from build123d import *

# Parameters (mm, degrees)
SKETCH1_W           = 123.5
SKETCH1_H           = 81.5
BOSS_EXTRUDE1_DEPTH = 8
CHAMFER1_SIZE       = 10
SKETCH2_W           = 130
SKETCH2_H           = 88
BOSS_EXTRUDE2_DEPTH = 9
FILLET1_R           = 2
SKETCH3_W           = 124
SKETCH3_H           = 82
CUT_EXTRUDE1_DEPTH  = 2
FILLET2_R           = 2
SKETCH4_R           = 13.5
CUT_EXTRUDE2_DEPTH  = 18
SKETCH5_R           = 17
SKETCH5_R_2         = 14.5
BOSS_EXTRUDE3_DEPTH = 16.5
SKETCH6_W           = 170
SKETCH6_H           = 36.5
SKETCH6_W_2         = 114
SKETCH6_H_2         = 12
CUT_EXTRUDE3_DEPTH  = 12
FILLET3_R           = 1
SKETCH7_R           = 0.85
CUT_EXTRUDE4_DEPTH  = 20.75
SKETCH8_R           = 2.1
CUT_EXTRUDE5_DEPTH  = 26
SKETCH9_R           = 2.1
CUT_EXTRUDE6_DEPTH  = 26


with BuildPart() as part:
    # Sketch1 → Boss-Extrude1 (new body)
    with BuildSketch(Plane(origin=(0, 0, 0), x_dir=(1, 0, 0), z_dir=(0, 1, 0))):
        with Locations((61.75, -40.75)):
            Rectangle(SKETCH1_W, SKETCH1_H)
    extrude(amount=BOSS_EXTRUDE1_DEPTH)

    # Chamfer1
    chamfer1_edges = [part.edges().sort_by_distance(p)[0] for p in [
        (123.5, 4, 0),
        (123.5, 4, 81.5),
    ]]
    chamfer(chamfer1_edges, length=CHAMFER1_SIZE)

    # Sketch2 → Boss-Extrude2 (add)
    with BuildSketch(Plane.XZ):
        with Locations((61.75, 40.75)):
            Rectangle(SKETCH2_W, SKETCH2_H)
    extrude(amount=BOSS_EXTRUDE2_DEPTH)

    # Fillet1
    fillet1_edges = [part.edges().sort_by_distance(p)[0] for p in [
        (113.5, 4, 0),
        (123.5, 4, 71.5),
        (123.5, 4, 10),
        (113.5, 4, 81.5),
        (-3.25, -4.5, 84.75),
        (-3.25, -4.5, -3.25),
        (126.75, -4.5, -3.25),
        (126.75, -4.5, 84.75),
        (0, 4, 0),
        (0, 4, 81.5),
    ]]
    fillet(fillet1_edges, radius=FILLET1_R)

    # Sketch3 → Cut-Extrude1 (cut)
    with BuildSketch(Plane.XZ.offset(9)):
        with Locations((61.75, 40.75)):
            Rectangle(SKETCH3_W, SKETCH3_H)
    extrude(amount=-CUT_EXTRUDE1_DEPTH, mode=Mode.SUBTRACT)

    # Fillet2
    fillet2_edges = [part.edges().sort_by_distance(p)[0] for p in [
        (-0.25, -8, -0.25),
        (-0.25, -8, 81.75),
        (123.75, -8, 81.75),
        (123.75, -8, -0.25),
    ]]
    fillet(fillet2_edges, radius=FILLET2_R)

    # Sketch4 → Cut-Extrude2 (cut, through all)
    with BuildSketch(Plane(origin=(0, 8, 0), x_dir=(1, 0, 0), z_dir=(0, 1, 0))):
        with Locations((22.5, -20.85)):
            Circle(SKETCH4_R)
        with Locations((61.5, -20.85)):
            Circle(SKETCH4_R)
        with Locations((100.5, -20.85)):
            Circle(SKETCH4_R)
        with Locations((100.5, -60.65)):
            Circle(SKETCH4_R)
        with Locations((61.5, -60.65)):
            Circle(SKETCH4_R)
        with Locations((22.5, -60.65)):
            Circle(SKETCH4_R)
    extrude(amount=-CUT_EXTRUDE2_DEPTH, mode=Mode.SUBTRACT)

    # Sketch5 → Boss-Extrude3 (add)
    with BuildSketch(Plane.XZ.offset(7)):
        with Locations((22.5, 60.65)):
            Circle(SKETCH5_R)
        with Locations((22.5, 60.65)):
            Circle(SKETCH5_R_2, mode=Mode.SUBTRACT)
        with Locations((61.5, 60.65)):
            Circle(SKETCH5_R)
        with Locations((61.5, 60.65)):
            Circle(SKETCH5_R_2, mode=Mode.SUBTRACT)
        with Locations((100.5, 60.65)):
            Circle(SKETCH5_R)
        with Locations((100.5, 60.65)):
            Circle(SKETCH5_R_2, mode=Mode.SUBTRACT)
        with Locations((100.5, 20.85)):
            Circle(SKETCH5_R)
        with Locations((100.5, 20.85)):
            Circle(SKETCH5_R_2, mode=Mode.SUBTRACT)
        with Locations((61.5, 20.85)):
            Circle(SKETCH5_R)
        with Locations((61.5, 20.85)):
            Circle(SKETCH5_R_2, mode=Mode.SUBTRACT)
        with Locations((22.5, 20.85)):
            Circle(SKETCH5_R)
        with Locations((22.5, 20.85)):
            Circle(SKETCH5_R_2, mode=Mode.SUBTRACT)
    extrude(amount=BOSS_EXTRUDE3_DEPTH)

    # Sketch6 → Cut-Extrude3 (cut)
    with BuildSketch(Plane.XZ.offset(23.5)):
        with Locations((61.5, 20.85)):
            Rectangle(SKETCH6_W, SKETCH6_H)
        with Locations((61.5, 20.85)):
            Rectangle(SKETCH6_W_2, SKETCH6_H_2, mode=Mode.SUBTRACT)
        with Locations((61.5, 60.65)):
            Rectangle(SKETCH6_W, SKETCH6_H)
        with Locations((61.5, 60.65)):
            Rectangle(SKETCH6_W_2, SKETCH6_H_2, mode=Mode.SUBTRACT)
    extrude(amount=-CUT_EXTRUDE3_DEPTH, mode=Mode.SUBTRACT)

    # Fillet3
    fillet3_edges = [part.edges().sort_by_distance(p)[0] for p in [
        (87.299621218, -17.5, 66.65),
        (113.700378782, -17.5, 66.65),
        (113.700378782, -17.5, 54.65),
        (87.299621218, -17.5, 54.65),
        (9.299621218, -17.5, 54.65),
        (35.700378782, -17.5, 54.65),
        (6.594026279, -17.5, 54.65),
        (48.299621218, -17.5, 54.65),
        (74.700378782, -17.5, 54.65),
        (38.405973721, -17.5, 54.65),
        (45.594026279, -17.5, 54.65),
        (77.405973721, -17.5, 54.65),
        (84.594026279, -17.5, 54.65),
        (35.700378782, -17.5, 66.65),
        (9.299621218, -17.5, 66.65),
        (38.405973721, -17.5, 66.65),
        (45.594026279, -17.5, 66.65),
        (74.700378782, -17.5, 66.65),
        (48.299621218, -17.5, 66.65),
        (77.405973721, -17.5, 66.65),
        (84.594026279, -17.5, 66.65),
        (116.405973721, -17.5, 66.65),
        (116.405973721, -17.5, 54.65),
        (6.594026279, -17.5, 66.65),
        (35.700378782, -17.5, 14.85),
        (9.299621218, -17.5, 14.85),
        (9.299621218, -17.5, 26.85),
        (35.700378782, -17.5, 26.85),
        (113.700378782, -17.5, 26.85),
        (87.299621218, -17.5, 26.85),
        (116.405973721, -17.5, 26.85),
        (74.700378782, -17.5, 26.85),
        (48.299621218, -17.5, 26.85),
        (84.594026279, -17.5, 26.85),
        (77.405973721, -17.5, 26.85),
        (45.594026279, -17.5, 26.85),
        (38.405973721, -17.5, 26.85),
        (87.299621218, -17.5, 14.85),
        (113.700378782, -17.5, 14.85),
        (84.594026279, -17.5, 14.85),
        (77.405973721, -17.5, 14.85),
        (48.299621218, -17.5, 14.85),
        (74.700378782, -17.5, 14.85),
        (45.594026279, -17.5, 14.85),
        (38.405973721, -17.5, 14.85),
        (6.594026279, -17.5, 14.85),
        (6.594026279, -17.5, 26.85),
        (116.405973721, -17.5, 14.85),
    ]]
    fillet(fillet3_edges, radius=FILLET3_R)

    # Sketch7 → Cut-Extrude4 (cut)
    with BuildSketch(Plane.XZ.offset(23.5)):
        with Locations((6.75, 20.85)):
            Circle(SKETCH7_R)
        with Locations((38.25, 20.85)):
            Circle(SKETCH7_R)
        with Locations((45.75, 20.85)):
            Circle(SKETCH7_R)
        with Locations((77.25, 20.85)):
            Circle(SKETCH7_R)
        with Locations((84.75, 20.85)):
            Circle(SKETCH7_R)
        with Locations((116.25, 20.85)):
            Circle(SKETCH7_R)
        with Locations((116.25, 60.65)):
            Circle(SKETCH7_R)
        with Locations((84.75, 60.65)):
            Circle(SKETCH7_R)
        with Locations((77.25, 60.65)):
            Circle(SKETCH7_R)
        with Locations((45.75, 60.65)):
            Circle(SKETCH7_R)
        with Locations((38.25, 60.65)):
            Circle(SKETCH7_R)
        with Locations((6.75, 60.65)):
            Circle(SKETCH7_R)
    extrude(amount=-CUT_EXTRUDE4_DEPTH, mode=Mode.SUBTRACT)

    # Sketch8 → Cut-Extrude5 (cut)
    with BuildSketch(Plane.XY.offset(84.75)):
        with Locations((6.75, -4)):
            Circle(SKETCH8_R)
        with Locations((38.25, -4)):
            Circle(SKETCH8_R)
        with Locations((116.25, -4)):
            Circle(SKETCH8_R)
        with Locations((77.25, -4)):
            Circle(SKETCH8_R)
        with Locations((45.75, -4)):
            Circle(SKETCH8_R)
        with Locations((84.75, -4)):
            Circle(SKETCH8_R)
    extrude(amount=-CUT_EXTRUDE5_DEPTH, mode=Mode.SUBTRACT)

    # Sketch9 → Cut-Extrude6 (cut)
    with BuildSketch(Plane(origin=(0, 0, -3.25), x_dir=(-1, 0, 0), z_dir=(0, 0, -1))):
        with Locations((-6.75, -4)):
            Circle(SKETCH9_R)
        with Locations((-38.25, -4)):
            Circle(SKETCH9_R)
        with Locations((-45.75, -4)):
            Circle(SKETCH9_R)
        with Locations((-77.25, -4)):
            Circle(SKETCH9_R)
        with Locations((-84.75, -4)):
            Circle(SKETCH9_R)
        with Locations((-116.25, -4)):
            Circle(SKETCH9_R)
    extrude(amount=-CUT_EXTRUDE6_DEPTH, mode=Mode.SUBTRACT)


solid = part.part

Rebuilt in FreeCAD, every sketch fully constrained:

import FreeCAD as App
import Part
import Sketcher


def edges_at(feature, points):
    """Names of the edges that pass closest to the given points."""
    edges = feature.Shape.Edges
    near = lambda p: min(range(len(edges)), key=lambda i: edges[i].distToShape(Part.Vertex(*p))[0])
    return sorted({f"Edge{near(p) + 1}" for p in points})

doc = App.newDocument("Part")
params = doc.addObject("Spreadsheet::Sheet", "Params")
for row, (alias, value) in enumerate([
    ("sketch1_width", "123.5 mm"),
    ("sketch1_height", "81.5 mm"),
    ("pad1_length", "8 mm"),
    ("chamfer_size", "10 mm"),
    ("sketch2_width", "130 mm"),
    ("sketch2_height", "88 mm"),
    ("pad2_length", "9 mm"),
    ("fillet_radius", "2 mm"),
    ("sketch3_width", "124 mm"),
    ("sketch3_height", "82 mm"),
    ("pocket1_length", "2 mm"),
    ("fillet2_radius", "2 mm"),
    ("sketch4_diameter", "27 mm"),
    ("sketch5_diameter", "34 mm"),
    ("sketch5_diameter2", "29 mm"),
    ("pad3_length", "16.5 mm"),
    ("sketch6_width", "170 mm"),
    ("sketch6_width2", "114 mm"),
    ("sketch6_height", "12 mm"),
    ("sketch6_height2", "36.5 mm"),
    ("pocket3_length", "12 mm"),
    ("fillet3_radius", "1 mm"),
    ("sketch7_diameter", "1.7 mm"),
    ("pocket4_length", "20.75 mm"),
    ("sketch8_diameter", "4.2 mm"),
    ("pocket5_length", "26 mm"),
    ("sketch9_diameter", "4.2 mm"),
    ("pocket6_length", "26 mm"),
], start=1):
    params.set(f"A{row}", alias)
    params.set(f"B{row}", "=" + value)
    params.setAlias(f"B{row}", alias)

body = doc.addObject("PartDesign::Body", "Body")

# Sketch on XZ plane
sketch1 = body.newObject("Sketcher::SketchObject", "Sketch")
sketch1.AttachmentSupport = (doc.getObject("XZ_Plane"), [""])
sketch1.MapMode = "FlatFace"
sketch1.addGeometry(Part.LineSegment(App.Vector(0, 0, 0), App.Vector(0, 81.5, 0)), False)
sketch1.addGeometry(Part.LineSegment(App.Vector(0, 81.5, 0), App.Vector(123.5, 81.5, 0)), False)
sketch1.addGeometry(Part.LineSegment(App.Vector(123.5, 81.5, 0), App.Vector(123.5, 0, 0)), False)
sketch1.addGeometry(Part.LineSegment(App.Vector(123.5, 0, 0), App.Vector(0, 0, 0)), False)
sketch1.addConstraint(Sketcher.Constraint("Coincident", 0, 2, 1, 1))
sketch1.addConstraint(Sketcher.Constraint("Coincident", 1, 2, 2, 1))
sketch1.addConstraint(Sketcher.Constraint("Coincident", 2, 2, 3, 1))
sketch1.addConstraint(Sketcher.Constraint("Coincident", 3, 2, 0, 1))
sketch1.addConstraint(Sketcher.Constraint("Vertical", 0))
sketch1.addConstraint(Sketcher.Constraint("Horizontal", 1))
sketch1.addConstraint(Sketcher.Constraint("Vertical", 2))
sketch1.addConstraint(Sketcher.Constraint("Horizontal", 3))
sketch1.addConstraint(Sketcher.Constraint("Coincident", 3, 2, -1, 1))
sketch1.addConstraint(Sketcher.Constraint("DistanceX", 1, 1, 1, 2, 123.5))
sketch1.addConstraint(Sketcher.Constraint("DistanceY", 0, 1, 0, 2, 81.5))
sketch1.setExpression("Constraints[9]", "Params.sketch1_width")
sketch1.setExpression("Constraints[10]", "Params.sketch1_height")
pad1 = body.newObject("PartDesign::Pad", "Pad")
pad1.Profile = sketch1
pad1.setExpression("Length", "Params.pad1_length")
pad1.Reversed = True
doc.recompute()

chamfer = body.newObject("PartDesign::Chamfer", "Chamfer")
chamfer.Base = (pad1, edges_at(pad1, [(123.5, 4, 0), (123.5, 4, 81.5)]))
chamfer.setExpression("Size", "Params.chamfer_size")

# Sketch on XZ plane
sketch2 = body.newObject("Sketcher::SketchObject", "Sketch001")
sketch2.AttachmentSupport = (doc.getObject("XZ_Plane"), [""])
sketch2.MapMode = "FlatFace"
sketch2.addGeometry(Part.LineSegment(App.Vector(-3.25, 84.75, 0), App.Vector(-3.25, -3.25, 0)), False)
sketch2.addGeometry(Part.LineSegment(App.Vector(-3.25, -3.25, 0), App.Vector(126.75, -3.25, 0)), False)
sketch2.addGeometry(Part.LineSegment(App.Vector(126.75, -3.25, 0), App.Vector(126.75, 84.75, 0)), False)
sketch2.addGeometry(Part.LineSegment(App.Vector(126.75, 84.75, 0), App.Vector(-3.25, 84.75, 0)), False)
sketch2.addConstraint(Sketcher.Constraint("Coincident", 0, 2, 1, 1))
sketch2.addConstraint(Sketcher.Constraint("Coincident", 1, 2, 2, 1))
sketch2.addConstraint(Sketcher.Constraint("Coincident", 2, 2, 3, 1))
sketch2.addConstraint(Sketcher.Constraint("Coincident", 3, 2, 0, 1))
sketch2.addConstraint(Sketcher.Constraint("Vertical", 0))
sketch2.addConstraint(Sketcher.Constraint("Horizontal", 1))
sketch2.addConstraint(Sketcher.Constraint("Vertical", 2))
sketch2.addConstraint(Sketcher.Constraint("Horizontal", 3))
sketch2.addConstraint(Sketcher.Constraint("DistanceX", 1, 1, 1, 2, 130.0))
sketch2.addConstraint(Sketcher.Constraint("DistanceY", 0, 2, 0, 1, 88.0))
sketch2.addConstraint(Sketcher.Constraint("DistanceX", 0, 2, -1, 1, 3.25))
sketch2.addConstraint(Sketcher.Constraint("DistanceY", 0, 2, -1, 1, 3.25))
sketch2.setExpression("Constraints[8]", "Params.sketch2_width")
sketch2.setExpression("Constraints[9]", "Params.sketch2_height")
pad2 = body.newObject("PartDesign::Pad", "Pad001")
pad2.Profile = sketch2
pad2.setExpression("Length", "Params.pad2_length")
doc.recompute()

fillet = body.newObject("PartDesign::Fillet", "Fillet")
fillet.Base = (pad2, edges_at(pad2, [
    (113.5, 4, 0),
    (123.5, 4, 71.5),
    (123.5, 4, 10),
    (113.5, 4, 81.5),
    (-3.25, -4.5, 84.75),
    (-3.25, -4.5, -3.25),
    (126.75, -4.5, -3.25),
    (126.75, -4.5, 84.75),
    (0, 4, 0),
    (0, 4, 81.5),
]))
fillet.setExpression("Radius", "Params.fillet_radius")

# Sketch on XZ plane
sketch3 = body.newObject("Sketcher::SketchObject", "Sketch002")
sketch3.AttachmentSupport = (doc.getObject("XZ_Plane"), [""])
sketch3.MapMode = "FlatFace"
sketch3.AttachmentOffset = App.Placement(App.Vector(0, 0, 9), App.Rotation())
sketch3.addGeometry(Part.LineSegment(App.Vector(-0.25, 81.75, 0), App.Vector(-0.25, -0.25, 0)), False)
sketch3.addGeometry(Part.LineSegment(App.Vector(-0.25, -0.25, 0), App.Vector(123.75, -0.25, 0)), False)
sketch3.addGeometry(Part.LineSegment(App.Vector(123.75, -0.25, 0), App.Vector(123.75, 81.75, 0)), False)
sketch3.addGeometry(Part.LineSegment(App.Vector(123.75, 81.75, 0), App.Vector(-0.25, 81.75, 0)), False)
sketch3.addConstraint(Sketcher.Constraint("Coincident", 0, 2, 1, 1))
sketch3.addConstraint(Sketcher.Constraint("Coincident", 1, 2, 2, 1))
sketch3.addConstraint(Sketcher.Constraint("Coincident", 2, 2, 3, 1))
sketch3.addConstraint(Sketcher.Constraint("Coincident", 3, 2, 0, 1))
sketch3.addConstraint(Sketcher.Constraint("Vertical", 0))
sketch3.addConstraint(Sketcher.Constraint("Horizontal", 1))
sketch3.addConstraint(Sketcher.Constraint("Vertical", 2))
sketch3.addConstraint(Sketcher.Constraint("Horizontal", 3))
sketch3.addConstraint(Sketcher.Constraint("DistanceX", 1, 1, 1, 2, 124.0))
sketch3.addConstraint(Sketcher.Constraint("DistanceY", 0, 2, 0, 1, 82.0))
sketch3.addConstraint(Sketcher.Constraint("DistanceX", 0, 2, -1, 1, 0.25))
sketch3.addConstraint(Sketcher.Constraint("DistanceY", 0, 2, -1, 1, 0.25))
sketch3.setExpression("Constraints[8]", "Params.sketch3_width")
sketch3.setExpression("Constraints[9]", "Params.sketch3_height")
pocket1 = body.newObject("PartDesign::Pocket", "Pocket")
pocket1.Profile = sketch3
pocket1.setExpression("Length", "Params.pocket1_length")
doc.recompute()

fillet2 = body.newObject("PartDesign::Fillet", "Fillet001")
fillet2.Base = (pocket1, edges_at(pocket1, [
    (-0.25, -8, -0.25),
    (-0.25, -8, 81.75),
    (123.75, -8, 81.75),
    (123.75, -8, -0.25),
]))
fillet2.setExpression("Radius", "Params.fillet2_radius")

# Sketch on XZ plane
sketch4 = body.newObject("Sketcher::SketchObject", "Sketch003")
sketch4.AttachmentSupport = (doc.getObject("XZ_Plane"), [""])
sketch4.MapMode = "FlatFace"
sketch4.AttachmentOffset = App.Placement(App.Vector(0, 0, -8), App.Rotation())
sketch4.addGeometry(Part.Circle(App.Vector(22.5, 20.85, 0), App.Vector(0, 0, 1), 13.5), False)
sketch4.addGeometry(Part.Circle(App.Vector(61.5, 20.85, 0), App.Vector(0, 0, 1), 13.5), False)
sketch4.addGeometry(Part.Circle(App.Vector(100.5, 20.85, 0), App.Vector(0, 0, 1), 13.5), False)
sketch4.addGeometry(Part.Circle(App.Vector(100.5, 60.65, 0), App.Vector(0, 0, 1), 13.5), False)
sketch4.addGeometry(Part.Circle(App.Vector(61.5, 60.65, 0), App.Vector(0, 0, 1), 13.5), False)
sketch4.addGeometry(Part.Circle(App.Vector(22.5, 60.65, 0), App.Vector(0, 0, 1), 13.5), False)
sketch4.addConstraint(Sketcher.Constraint("Equal", 0, 1))
sketch4.addConstraint(Sketcher.Constraint("Equal", 1, 2))
sketch4.addConstraint(Sketcher.Constraint("Equal", 2, 3))
sketch4.addConstraint(Sketcher.Constraint("Equal", 3, 4))
sketch4.addConstraint(Sketcher.Constraint("Equal", 4, 5))
sketch4.addConstraint(Sketcher.Constraint("Horizontal", 0, 3, 1, 3))
sketch4.addConstraint(Sketcher.Constraint("Horizontal", 1, 3, 2, 3))
sketch4.addConstraint(Sketcher.Constraint("Horizontal", 3, 3, 4, 3))
sketch4.addConstraint(Sketcher.Constraint("Horizontal", 4, 3, 5, 3))
sketch4.addConstraint(Sketcher.Constraint("Vertical", 2, 3, 3, 3))
sketch4.addConstraint(Sketcher.Constraint("Vertical", 1, 3, 4, 3))
sketch4.addConstraint(Sketcher.Constraint("Vertical", 0, 3, 5, 3))
sketch4.addConstraint(Sketcher.Constraint("Diameter", 0, 27.0))
sketch4.addConstraint(Sketcher.Constraint("DistanceX", 0, 3, 1, 3, 39.0))
sketch4.addConstraint(Sketcher.Constraint("DistanceX", 1, 3, 2, 3, 39.0))
sketch4.addConstraint(Sketcher.Constraint("DistanceX", -1, 1, 0, 3, 22.5))
sketch4.addConstraint(Sketcher.Constraint("DistanceY", 2, 3, 3, 3, 39.8))
sketch4.addConstraint(Sketcher.Constraint("DistanceY", -1, 1, 0, 3, 20.85))
sketch4.setExpression("Constraints[12]", "Params.sketch4_diameter")
pocket2 = body.newObject("PartDesign::Pocket", "Pocket001")
pocket2.Profile = sketch4
pocket2.Type = "ThroughAll"
pocket2.Reversed = True

# Sketch on XZ plane
sketch5 = body.newObject("Sketcher::SketchObject", "Sketch004")
sketch5.AttachmentSupport = (doc.getObject("XZ_Plane"), [""])
sketch5.MapMode = "FlatFace"
sketch5.AttachmentOffset = App.Placement(App.Vector(0, 0, 7), App.Rotation())
sketch5.addGeometry(Part.Circle(App.Vector(22.5, 60.65, 0), App.Vector(0, 0, 1), 17), False)
sketch5.addGeometry(Part.Circle(App.Vector(22.5, 60.65, 0), App.Vector(0, 0, 1), 14.5), False)
sketch5.addGeometry(Part.Circle(App.Vector(61.5, 60.65, 0), App.Vector(0, 0, 1), 17), False)
sketch5.addGeometry(Part.Circle(App.Vector(61.5, 60.65, 0), App.Vector(0, 0, 1), 14.5), False)
sketch5.addGeometry(Part.Circle(App.Vector(100.5, 60.65, 0), App.Vector(0, 0, 1), 17), False)
sketch5.addGeometry(Part.Circle(App.Vector(100.5, 60.65, 0), App.Vector(0, 0, 1), 14.5), False)
sketch5.addGeometry(Part.Circle(App.Vector(100.5, 20.85, 0), App.Vector(0, 0, 1), 17), False)
sketch5.addGeometry(Part.Circle(App.Vector(100.5, 20.85, 0), App.Vector(0, 0, 1), 14.5), False)
sketch5.addGeometry(Part.Circle(App.Vector(61.5, 20.85, 0), App.Vector(0, 0, 1), 17), False)
sketch5.addGeometry(Part.Circle(App.Vector(61.5, 20.85, 0), App.Vector(0, 0, 1), 14.5), False)
sketch5.addGeometry(Part.Circle(App.Vector(22.5, 20.85, 0), App.Vector(0, 0, 1), 17), False)
sketch5.addGeometry(Part.Circle(App.Vector(22.5, 20.85, 0), App.Vector(0, 0, 1), 14.5), False)
sketch5.addConstraint(Sketcher.Constraint("Coincident", 1, 3, 0, 3))
sketch5.addConstraint(Sketcher.Constraint("Coincident", 3, 3, 2, 3))
sketch5.addConstraint(Sketcher.Constraint("Coincident", 5, 3, 4, 3))
sketch5.addConstraint(Sketcher.Constraint("Coincident", 7, 3, 6, 3))
sketch5.addConstraint(Sketcher.Constraint("Coincident", 9, 3, 8, 3))
sketch5.addConstraint(Sketcher.Constraint("Coincident", 11, 3, 10, 3))
sketch5.addConstraint(Sketcher.Constraint("Equal", 0, 2))
sketch5.addConstraint(Sketcher.Constraint("Equal", 1, 3))
sketch5.addConstraint(Sketcher.Constraint("Equal", 2, 4))
sketch5.addConstraint(Sketcher.Constraint("Equal", 3, 5))
sketch5.addConstraint(Sketcher.Constraint("Equal", 4, 6))
sketch5.addConstraint(Sketcher.Constraint("Equal", 5, 7))
sketch5.addConstraint(Sketcher.Constraint("Equal", 6, 8))
sketch5.addConstraint(Sketcher.Constraint("Equal", 7, 9))
sketch5.addConstraint(Sketcher.Constraint("Equal", 8, 10))
sketch5.addConstraint(Sketcher.Constraint("Equal", 9, 11))
sketch5.addConstraint(Sketcher.Constraint("Horizontal", 1, 3, 2, 3))
sketch5.addConstraint(Sketcher.Constraint("Horizontal", 3, 3, 4, 3))
sketch5.addConstraint(Sketcher.Constraint("Horizontal", 7, 3, 8, 3))
sketch5.addConstraint(Sketcher.Constraint("Horizontal", 9, 3, 10, 3))
sketch5.addConstraint(Sketcher.Constraint("Vertical", 5, 3, 6, 3))
sketch5.addConstraint(Sketcher.Constraint("Vertical", 3, 3, 8, 3))
sketch5.addConstraint(Sketcher.Constraint("Vertical", 1, 3, 10, 3))
sketch5.addConstraint(Sketcher.Constraint("Diameter", 0, 34.0))
sketch5.addConstraint(Sketcher.Constraint("Diameter", 1, 29.0))
sketch5.addConstraint(Sketcher.Constraint("DistanceX", 0, 3, 2, 3, 39.0))
sketch5.addConstraint(Sketcher.Constraint("DistanceX", 2, 3, 4, 3, 39.0))
sketch5.addConstraint(Sketcher.Constraint("DistanceX", -1, 1, 0, 3, 22.5))
sketch5.addConstraint(Sketcher.Constraint("DistanceY", 6, 3, 4, 3, 39.8))
sketch5.addConstraint(Sketcher.Constraint("DistanceY", -1, 1, 0, 3, 60.65))
sketch5.setExpression("Constraints[23]", "Params.sketch5_diameter")
sketch5.setExpression("Constraints[24]", "Params.sketch5_diameter2")
pad3 = body.newObject("PartDesign::Pad", "Pad002")
pad3.Profile = sketch5
pad3.setExpression("Length", "Params.pad3_length")

# Sketch on XZ plane
sketch6 = body.newObject("Sketcher::SketchObject", "Sketch005")
sketch6.AttachmentSupport = (doc.getObject("XZ_Plane"), [""])
sketch6.MapMode = "FlatFace"
sketch6.AttachmentOffset = App.Placement(App.Vector(0, 0, 23.5), App.Rotation())
sketch6.addGeometry(Part.LineSegment(App.Vector(-23.5, 39.1, 0), App.Vector(-23.5, 2.6, 0)), False)
sketch6.addGeometry(Part.LineSegment(App.Vector(-23.5, 2.6, 0), App.Vector(146.5, 2.6, 0)), False)
sketch6.addGeometry(Part.LineSegment(App.Vector(146.5, 2.6, 0), App.Vector(146.5, 39.1, 0)), False)
sketch6.addGeometry(Part.LineSegment(App.Vector(146.5, 39.1, 0), App.Vector(-23.5, 39.1, 0)), False)
sketch6.addGeometry(Part.LineSegment(App.Vector(118.5, 14.85, 0), App.Vector(4.5, 14.85, 0)), False)
sketch6.addGeometry(Part.LineSegment(App.Vector(4.5, 14.85, 0), App.Vector(4.5, 26.85, 0)), False)
sketch6.addGeometry(Part.LineSegment(App.Vector(4.5, 26.85, 0), App.Vector(118.5, 26.85, 0)), False)
sketch6.addGeometry(Part.LineSegment(App.Vector(118.5, 26.85, 0), App.Vector(118.5, 14.85, 0)), False)
sketch6.addGeometry(Part.LineSegment(App.Vector(-23.5, 78.9, 0), App.Vector(-23.5, 42.4, 0)), False)
sketch6.addGeometry(Part.LineSegment(App.Vector(-23.5, 42.4, 0), App.Vector(146.5, 42.4, 0)), False)
sketch6.addGeometry(Part.LineSegment(App.Vector(146.5, 42.4, 0), App.Vector(146.5, 78.9, 0)), False)
sketch6.addGeometry(Part.LineSegment(App.Vector(146.5, 78.9, 0), App.Vector(-23.5, 78.9, 0)), False)
sketch6.addGeometry(Part.LineSegment(App.Vector(118.5, 54.65, 0), App.Vector(4.5, 54.65, 0)), False)
sketch6.addGeometry(Part.LineSegment(App.Vector(4.5, 54.65, 0), App.Vector(4.5, 66.65, 0)), False)
sketch6.addGeometry(Part.LineSegment(App.Vector(4.5, 66.65, 0), App.Vector(118.5, 66.65, 0)), False)
sketch6.addGeometry(Part.LineSegment(App.Vector(118.5, 66.65, 0), App.Vector(118.5, 54.65, 0)), False)
sketch6.addConstraint(Sketcher.Constraint("Coincident", 0, 2, 1, 1))
sketch6.addConstraint(Sketcher.Constraint("Coincident", 1, 2, 2, 1))
sketch6.addConstraint(Sketcher.Constraint("Coincident", 2, 2, 3, 1))
sketch6.addConstraint(Sketcher.Constraint("Coincident", 3, 2, 0, 1))
sketch6.addConstraint(Sketcher.Constraint("Coincident", 4, 2, 5, 1))
sketch6.addConstraint(Sketcher.Constraint("Coincident", 5, 2, 6, 1))
sketch6.addConstraint(Sketcher.Constraint("Coincident", 6, 2, 7, 1))
sketch6.addConstraint(Sketcher.Constraint("Coincident", 7, 2, 4, 1))
sketch6.addConstraint(Sketcher.Constraint("Coincident", 8, 2, 9, 1))
sketch6.addConstraint(Sketcher.Constraint("Coincident", 9, 2, 10, 1))
sketch6.addConstraint(Sketcher.Constraint("Coincident", 10, 2, 11, 1))
sketch6.addConstraint(Sketcher.Constraint("Coincident", 11, 2, 8, 1))
sketch6.addConstraint(Sketcher.Constraint("Coincident", 12, 2, 13, 1))
sketch6.addConstraint(Sketcher.Constraint("Coincident", 13, 2, 14, 1))
sketch6.addConstraint(Sketcher.Constraint("Coincident", 14, 2, 15, 1))
sketch6.addConstraint(Sketcher.Constraint("Coincident", 15, 2, 12, 1))
sketch6.addConstraint(Sketcher.Constraint("Vertical", 0))
sketch6.addConstraint(Sketcher.Constraint("Horizontal", 1))
sketch6.addConstraint(Sketcher.Constraint("Vertical", 2))
sketch6.addConstraint(Sketcher.Constraint("Horizontal", 3))
sketch6.addConstraint(Sketcher.Constraint("Horizontal", 4))
sketch6.addConstraint(Sketcher.Constraint("Vertical", 5))
sketch6.addConstraint(Sketcher.Constraint("Horizontal", 6))
sketch6.addConstraint(Sketcher.Constraint("Vertical", 7))
sketch6.addConstraint(Sketcher.Constraint("Vertical", 8))
sketch6.addConstraint(Sketcher.Constraint("Horizontal", 9))
sketch6.addConstraint(Sketcher.Constraint("Vertical", 10))
sketch6.addConstraint(Sketcher.Constraint("Horizontal", 11))
sketch6.addConstraint(Sketcher.Constraint("Horizontal", 12))
sketch6.addConstraint(Sketcher.Constraint("Vertical", 13))
sketch6.addConstraint(Sketcher.Constraint("Horizontal", 14))
sketch6.addConstraint(Sketcher.Constraint("Vertical", 15))
sketch6.addConstraint(Sketcher.Constraint("Vertical", 3, 2, 8, 2))
sketch6.addConstraint(Sketcher.Constraint("Vertical", 2, 2, 9, 2))
sketch6.addConstraint(Sketcher.Constraint("Vertical", 5, 2, 12, 2))
sketch6.addConstraint(Sketcher.Constraint("Vertical", 7, 2, 14, 2))
sketch6.addConstraint(Sketcher.Constraint("Equal", 2, 8))
sketch6.addConstraint(Sketcher.Constraint("Equal", 7, 13))
sketch6.addConstraint(Sketcher.Constraint("DistanceX", 1, 1, 1, 2, 170.0))
sketch6.addConstraint(Sketcher.Constraint("DistanceX", 4, 2, 4, 1, 114.0))
sketch6.addConstraint(Sketcher.Constraint("DistanceY", 5, 1, 5, 2, 12.0))
sketch6.addConstraint(Sketcher.Constraint("DistanceY", 0, 2, 0, 1, 36.5))
sketch6.addConstraint(Sketcher.Constraint("DistanceX", 0, 2, 4, 2, 28.0))
sketch6.addConstraint(Sketcher.Constraint("DistanceX", 0, 2, -1, 1, 23.5))
sketch6.addConstraint(Sketcher.Constraint("DistanceY", -1, 1, 0, 2, 2.6))
sketch6.addConstraint(Sketcher.Constraint("DistanceY", -1, 1, 8, 2, 42.4))
sketch6.addConstraint(Sketcher.Constraint("DistanceY", 5, 2, 12, 2, 27.8))
sketch6.addConstraint(Sketcher.Constraint("DistanceY", -1, 1, 4, 2, 14.85))
sketch6.setExpression("Constraints[38]", "Params.sketch6_width")
sketch6.setExpression("Constraints[39]", "Params.sketch6_width2")
sketch6.setExpression("Constraints[40]", "Params.sketch6_height")
sketch6.setExpression("Constraints[41]", "Params.sketch6_height2")
pocket3 = body.newObject("PartDesign::Pocket", "Pocket002")
pocket3.Profile = sketch6
pocket3.setExpression("Length", "Params.pocket3_length")
doc.recompute()

fillet3 = body.newObject("PartDesign::Fillet", "Fillet002")
fillet3.Base = (pocket3, edges_at(pocket3, [
    (87.3, -17.5, 66.65),
    (113.7, -17.5, 66.65),
    (113.7, -17.5, 54.65),
    (87.3, -17.5, 54.65),
    (9.3, -17.5, 54.65),
    (35.7, -17.5, 54.65),
    (6.594, -17.5, 54.65),
    (48.3, -17.5, 54.65),
    (74.7, -17.5, 54.65),
    (38.406, -17.5, 54.65),
    (45.594, -17.5, 54.65),
    (77.406, -17.5, 54.65),
    (84.594, -17.5, 54.65),
    (35.7, -17.5, 66.65),
    (9.3, -17.5, 66.65),
    (38.406, -17.5, 66.65),
    (45.594, -17.5, 66.65),
    (74.7, -17.5, 66.65),
    (48.3, -17.5, 66.65),
    (77.406, -17.5, 66.65),
    (84.594, -17.5, 66.65),
    (116.406, -17.5, 66.65),
    (116.406, -17.5, 54.65),
    (6.594, -17.5, 66.65),
    (35.7, -17.5, 14.85),
    (9.3, -17.5, 14.85),
    (9.3, -17.5, 26.85),
    (35.7, -17.5, 26.85),
    (113.7, -17.5, 26.85),
    (87.3, -17.5, 26.85),
    (116.406, -17.5, 26.85),
    (74.7, -17.5, 26.85),
    (48.3, -17.5, 26.85),
    (84.594, -17.5, 26.85),
    (77.406, -17.5, 26.85),
    (45.594, -17.5, 26.85),
    (38.406, -17.5, 26.85),
    (87.3, -17.5, 14.85),
    (113.7, -17.5, 14.85),
    (84.594, -17.5, 14.85),
    (77.406, -17.5, 14.85),
    (48.3, -17.5, 14.85),
    (74.7, -17.5, 14.85),
    (45.594, -17.5, 14.85),
    (38.406, -17.5, 14.85),
    (6.594, -17.5, 14.85),
    (6.594, -17.5, 26.85),
    (116.406, -17.5, 14.85),
]))
fillet3.setExpression("Radius", "Params.fillet3_radius")

# Sketch on XZ plane
sketch7 = body.newObject("Sketcher::SketchObject", "Sketch006")
sketch7.AttachmentSupport = (doc.getObject("XZ_Plane"), [""])
sketch7.MapMode = "FlatFace"
sketch7.AttachmentOffset = App.Placement(App.Vector(0, 0, 23.5), App.Rotation())
sketch7.addGeometry(Part.Circle(App.Vector(6.75, 20.85, 0), App.Vector(0, 0, 1), 0.85), False)
sketch7.addGeometry(Part.Circle(App.Vector(38.25, 20.85, 0), App.Vector(0, 0, 1), 0.85), False)
sketch7.addGeometry(Part.Circle(App.Vector(45.75, 20.85, 0), App.Vector(0, 0, 1), 0.85), False)
sketch7.addGeometry(Part.Circle(App.Vector(77.25, 20.85, 0), App.Vector(0, 0, 1), 0.85), False)
sketch7.addGeometry(Part.Circle(App.Vector(84.75, 20.85, 0), App.Vector(0, 0, 1), 0.85), False)
sketch7.addGeometry(Part.Circle(App.Vector(116.25, 20.85, 0), App.Vector(0, 0, 1), 0.85), False)
sketch7.addGeometry(Part.Circle(App.Vector(116.25, 60.65, 0), App.Vector(0, 0, 1), 0.85), False)
sketch7.addGeometry(Part.Circle(App.Vector(84.75, 60.65, 0), App.Vector(0, 0, 1), 0.85), False)
sketch7.addGeometry(Part.Circle(App.Vector(77.25, 60.65, 0), App.Vector(0, 0, 1), 0.85), False)
sketch7.addGeometry(Part.Circle(App.Vector(45.75, 60.65, 0), App.Vector(0, 0, 1), 0.85), False)
sketch7.addGeometry(Part.Circle(App.Vector(38.25, 60.65, 0), App.Vector(0, 0, 1), 0.85), False)
sketch7.addGeometry(Part.Circle(App.Vector(6.75, 60.65, 0), App.Vector(0, 0, 1), 0.85), False)
sketch7.addConstraint(Sketcher.Constraint("Equal", 0, 1))
sketch7.addConstraint(Sketcher.Constraint("Equal", 1, 2))
sketch7.addConstraint(Sketcher.Constraint("Equal", 2, 3))
sketch7.addConstraint(Sketcher.Constraint("Equal", 3, 4))
sketch7.addConstraint(Sketcher.Constraint("Equal", 4, 5))
sketch7.addConstraint(Sketcher.Constraint("Equal", 5, 6))
sketch7.addConstraint(Sketcher.Constraint("Equal", 6, 7))
sketch7.addConstraint(Sketcher.Constraint("Equal", 7, 8))
sketch7.addConstraint(Sketcher.Constraint("Equal", 8, 9))
sketch7.addConstraint(Sketcher.Constraint("Equal", 9, 10))
sketch7.addConstraint(Sketcher.Constraint("Equal", 10, 11))
sketch7.addConstraint(Sketcher.Constraint("Horizontal", 0, 3, 1, 3))
sketch7.addConstraint(Sketcher.Constraint("Horizontal", 1, 3, 2, 3))
sketch7.addConstraint(Sketcher.Constraint("Horizontal", 2, 3, 3, 3))
sketch7.addConstraint(Sketcher.Constraint("Horizontal", 3, 3, 4, 3))
sketch7.addConstraint(Sketcher.Constraint("Horizontal", 4, 3, 5, 3))
sketch7.addConstraint(Sketcher.Constraint("Horizontal", 6, 3, 7, 3))
sketch7.addConstraint(Sketcher.Constraint("Horizontal", 7, 3, 8, 3))
sketch7.addConstraint(Sketcher.Constraint("Horizontal", 8, 3, 9, 3))
sketch7.addConstraint(Sketcher.Constraint("Horizontal", 9, 3, 10, 3))
sketch7.addConstraint(Sketcher.Constraint("Horizontal", 10, 3, 11, 3))
sketch7.addConstraint(Sketcher.Constraint("Vertical", 5, 3, 6, 3))
sketch7.addConstraint(Sketcher.Constraint("Vertical", 4, 3, 7, 3))
sketch7.addConstraint(Sketcher.Constraint("Vertical", 3, 3, 8, 3))
sketch7.addConstraint(Sketcher.Constraint("Vertical", 2, 3, 9, 3))
sketch7.addConstraint(Sketcher.Constraint("Vertical", 1, 3, 10, 3))
sketch7.addConstraint(Sketcher.Constraint("Vertical", 0, 3, 11, 3))
sketch7.addConstraint(Sketcher.Constraint("Diameter", 0, 1.7))
sketch7.addConstraint(Sketcher.Constraint("DistanceX", 0, 3, 2, 3, 39.0))
sketch7.addConstraint(Sketcher.Constraint("DistanceX", 1, 3, 3, 3, 39.0))
sketch7.addConstraint(Sketcher.Constraint("DistanceX", 2, 3, 4, 3, 39.0))
sketch7.addConstraint(Sketcher.Constraint("DistanceX", 3, 3, 5, 3, 39.0))
sketch7.addConstraint(Sketcher.Constraint("DistanceX", 0, 3, 1, 3, 31.5))
sketch7.addConstraint(Sketcher.Constraint("DistanceY", 5, 3, 6, 3, 39.8))
sketch7.addConstraint(Sketcher.Constraint("DistanceX", -1, 1, 0, 3, 6.75))
sketch7.addConstraint(Sketcher.Constraint("DistanceY", -1, 1, 0, 3, 20.85))
sketch7.setExpression("Constraints[27]", "Params.sketch7_diameter")
pocket4 = body.newObject("PartDesign::Pocket", "Pocket003")
pocket4.Profile = sketch7
pocket4.setExpression("Length", "Params.pocket4_length")

# Sketch on XY plane
sketch8 = body.newObject("Sketcher::SketchObject", "Sketch007")
sketch8.AttachmentSupport = (doc.getObject("XY_Plane"), [""])
sketch8.MapMode = "FlatFace"
sketch8.AttachmentOffset = App.Placement(App.Vector(0, 0, 84.75), App.Rotation())
sketch8.addGeometry(Part.Circle(App.Vector(6.75, -4, 0), App.Vector(0, 0, 1), 2.1), False)
sketch8.addGeometry(Part.Circle(App.Vector(38.25, -4, 0), App.Vector(0, 0, 1), 2.1), False)
sketch8.addGeometry(Part.Circle(App.Vector(116.25, -4, 0), App.Vector(0, 0, 1), 2.1), False)
sketch8.addGeometry(Part.Circle(App.Vector(77.25, -4, 0), App.Vector(0, 0, 1), 2.1), False)
sketch8.addGeometry(Part.Circle(App.Vector(45.75, -4, 0), App.Vector(0, 0, 1), 2.1), False)
sketch8.addGeometry(Part.Circle(App.Vector(84.75, -4, 0), App.Vector(0, 0, 1), 2.1), False)
sketch8.addConstraint(Sketcher.Constraint("Equal", 0, 1))
sketch8.addConstraint(Sketcher.Constraint("Equal", 1, 2))
sketch8.addConstraint(Sketcher.Constraint("Equal", 2, 3))
sketch8.addConstraint(Sketcher.Constraint("Equal", 3, 4))
sketch8.addConstraint(Sketcher.Constraint("Equal", 4, 5))
sketch8.addConstraint(Sketcher.Constraint("Horizontal", 0, 3, 1, 3))
sketch8.addConstraint(Sketcher.Constraint("Horizontal", 1, 3, 2, 3))
sketch8.addConstraint(Sketcher.Constraint("Horizontal", 2, 3, 3, 3))
sketch8.addConstraint(Sketcher.Constraint("Horizontal", 3, 3, 4, 3))
sketch8.addConstraint(Sketcher.Constraint("Horizontal", 4, 3, 5, 3))
sketch8.addConstraint(Sketcher.Constraint("Diameter", 0, 4.2))
sketch8.addConstraint(Sketcher.Constraint("DistanceY", 0, 3, -1, 1, 4.0))
sketch8.addConstraint(Sketcher.Constraint("DistanceX", 1, 3, 2, 3, 78.0))
sketch8.addConstraint(Sketcher.Constraint("DistanceX", 1, 3, 3, 3, 39.0))
sketch8.addConstraint(Sketcher.Constraint("DistanceX", 0, 3, 4, 3, 39.0))
sketch8.addConstraint(Sketcher.Constraint("DistanceX", 4, 3, 5, 3, 39.0))
sketch8.addConstraint(Sketcher.Constraint("DistanceX", 0, 3, 1, 3, 31.5))
sketch8.addConstraint(Sketcher.Constraint("DistanceX", -1, 1, 0, 3, 6.75))
sketch8.setExpression("Constraints[10]", "Params.sketch8_diameter")
pocket5 = body.newObject("PartDesign::Pocket", "Pocket004")
pocket5.Profile = sketch8
pocket5.setExpression("Length", "Params.pocket5_length")

# Sketch on XY plane
sketch9 = body.newObject("Sketcher::SketchObject", "Sketch008")
sketch9.AttachmentSupport = (doc.getObject("XY_Plane"), [""])
sketch9.MapMode = "FlatFace"
sketch9.AttachmentOffset = App.Placement(App.Vector(0, 0, -3.25), App.Rotation())
sketch9.addGeometry(Part.Circle(App.Vector(6.75, -4, 0), App.Vector(0, 0, 1), 2.1), False)
sketch9.addGeometry(Part.Circle(App.Vector(38.25, -4, 0), App.Vector(0, 0, 1), 2.1), False)
sketch9.addGeometry(Part.Circle(App.Vector(45.75, -4, 0), App.Vector(0, 0, 1), 2.1), False)
sketch9.addGeometry(Part.Circle(App.Vector(77.25, -4, 0), App.Vector(0, 0, 1), 2.1), False)
sketch9.addGeometry(Part.Circle(App.Vector(84.75, -4, 0), App.Vector(0, 0, 1), 2.1), False)
sketch9.addGeometry(Part.Circle(App.Vector(116.25, -4, 0), App.Vector(0, 0, 1), 2.1), False)
sketch9.addConstraint(Sketcher.Constraint("Equal", 0, 1))
sketch9.addConstraint(Sketcher.Constraint("Equal", 1, 2))
sketch9.addConstraint(Sketcher.Constraint("Equal", 2, 3))
sketch9.addConstraint(Sketcher.Constraint("Equal", 3, 4))
sketch9.addConstraint(Sketcher.Constraint("Equal", 4, 5))
sketch9.addConstraint(Sketcher.Constraint("Horizontal", 0, 3, 1, 3))
sketch9.addConstraint(Sketcher.Constraint("Horizontal", 1, 3, 2, 3))
sketch9.addConstraint(Sketcher.Constraint("Horizontal", 2, 3, 3, 3))
sketch9.addConstraint(Sketcher.Constraint("Horizontal", 3, 3, 4, 3))
sketch9.addConstraint(Sketcher.Constraint("Horizontal", 4, 3, 5, 3))
sketch9.addConstraint(Sketcher.Constraint("Diameter", 0, 4.2))
sketch9.addConstraint(Sketcher.Constraint("DistanceY", 0, 3, -1, 1, 4.0))
sketch9.addConstraint(Sketcher.Constraint("DistanceX", 0, 3, 2, 3, 39.0))
sketch9.addConstraint(Sketcher.Constraint("DistanceX", 1, 3, 3, 3, 39.0))
sketch9.addConstraint(Sketcher.Constraint("DistanceX", 2, 3, 4, 3, 39.0))
sketch9.addConstraint(Sketcher.Constraint("DistanceX", 3, 3, 5, 3, 39.0))
sketch9.addConstraint(Sketcher.Constraint("DistanceX", 0, 3, 1, 3, 31.5))
sketch9.addConstraint(Sketcher.Constraint("DistanceX", -1, 1, 0, 3, 6.75))
sketch9.setExpression("Constraints[10]", "Params.sketch9_diameter")
pocket6 = body.newObject("PartDesign::Pocket", "Pocket005")
pocket6.Profile = sketch9
pocket6.setExpression("Length", "Params.pocket6_length")
pocket6.Reversed = True

doc.recompute()
